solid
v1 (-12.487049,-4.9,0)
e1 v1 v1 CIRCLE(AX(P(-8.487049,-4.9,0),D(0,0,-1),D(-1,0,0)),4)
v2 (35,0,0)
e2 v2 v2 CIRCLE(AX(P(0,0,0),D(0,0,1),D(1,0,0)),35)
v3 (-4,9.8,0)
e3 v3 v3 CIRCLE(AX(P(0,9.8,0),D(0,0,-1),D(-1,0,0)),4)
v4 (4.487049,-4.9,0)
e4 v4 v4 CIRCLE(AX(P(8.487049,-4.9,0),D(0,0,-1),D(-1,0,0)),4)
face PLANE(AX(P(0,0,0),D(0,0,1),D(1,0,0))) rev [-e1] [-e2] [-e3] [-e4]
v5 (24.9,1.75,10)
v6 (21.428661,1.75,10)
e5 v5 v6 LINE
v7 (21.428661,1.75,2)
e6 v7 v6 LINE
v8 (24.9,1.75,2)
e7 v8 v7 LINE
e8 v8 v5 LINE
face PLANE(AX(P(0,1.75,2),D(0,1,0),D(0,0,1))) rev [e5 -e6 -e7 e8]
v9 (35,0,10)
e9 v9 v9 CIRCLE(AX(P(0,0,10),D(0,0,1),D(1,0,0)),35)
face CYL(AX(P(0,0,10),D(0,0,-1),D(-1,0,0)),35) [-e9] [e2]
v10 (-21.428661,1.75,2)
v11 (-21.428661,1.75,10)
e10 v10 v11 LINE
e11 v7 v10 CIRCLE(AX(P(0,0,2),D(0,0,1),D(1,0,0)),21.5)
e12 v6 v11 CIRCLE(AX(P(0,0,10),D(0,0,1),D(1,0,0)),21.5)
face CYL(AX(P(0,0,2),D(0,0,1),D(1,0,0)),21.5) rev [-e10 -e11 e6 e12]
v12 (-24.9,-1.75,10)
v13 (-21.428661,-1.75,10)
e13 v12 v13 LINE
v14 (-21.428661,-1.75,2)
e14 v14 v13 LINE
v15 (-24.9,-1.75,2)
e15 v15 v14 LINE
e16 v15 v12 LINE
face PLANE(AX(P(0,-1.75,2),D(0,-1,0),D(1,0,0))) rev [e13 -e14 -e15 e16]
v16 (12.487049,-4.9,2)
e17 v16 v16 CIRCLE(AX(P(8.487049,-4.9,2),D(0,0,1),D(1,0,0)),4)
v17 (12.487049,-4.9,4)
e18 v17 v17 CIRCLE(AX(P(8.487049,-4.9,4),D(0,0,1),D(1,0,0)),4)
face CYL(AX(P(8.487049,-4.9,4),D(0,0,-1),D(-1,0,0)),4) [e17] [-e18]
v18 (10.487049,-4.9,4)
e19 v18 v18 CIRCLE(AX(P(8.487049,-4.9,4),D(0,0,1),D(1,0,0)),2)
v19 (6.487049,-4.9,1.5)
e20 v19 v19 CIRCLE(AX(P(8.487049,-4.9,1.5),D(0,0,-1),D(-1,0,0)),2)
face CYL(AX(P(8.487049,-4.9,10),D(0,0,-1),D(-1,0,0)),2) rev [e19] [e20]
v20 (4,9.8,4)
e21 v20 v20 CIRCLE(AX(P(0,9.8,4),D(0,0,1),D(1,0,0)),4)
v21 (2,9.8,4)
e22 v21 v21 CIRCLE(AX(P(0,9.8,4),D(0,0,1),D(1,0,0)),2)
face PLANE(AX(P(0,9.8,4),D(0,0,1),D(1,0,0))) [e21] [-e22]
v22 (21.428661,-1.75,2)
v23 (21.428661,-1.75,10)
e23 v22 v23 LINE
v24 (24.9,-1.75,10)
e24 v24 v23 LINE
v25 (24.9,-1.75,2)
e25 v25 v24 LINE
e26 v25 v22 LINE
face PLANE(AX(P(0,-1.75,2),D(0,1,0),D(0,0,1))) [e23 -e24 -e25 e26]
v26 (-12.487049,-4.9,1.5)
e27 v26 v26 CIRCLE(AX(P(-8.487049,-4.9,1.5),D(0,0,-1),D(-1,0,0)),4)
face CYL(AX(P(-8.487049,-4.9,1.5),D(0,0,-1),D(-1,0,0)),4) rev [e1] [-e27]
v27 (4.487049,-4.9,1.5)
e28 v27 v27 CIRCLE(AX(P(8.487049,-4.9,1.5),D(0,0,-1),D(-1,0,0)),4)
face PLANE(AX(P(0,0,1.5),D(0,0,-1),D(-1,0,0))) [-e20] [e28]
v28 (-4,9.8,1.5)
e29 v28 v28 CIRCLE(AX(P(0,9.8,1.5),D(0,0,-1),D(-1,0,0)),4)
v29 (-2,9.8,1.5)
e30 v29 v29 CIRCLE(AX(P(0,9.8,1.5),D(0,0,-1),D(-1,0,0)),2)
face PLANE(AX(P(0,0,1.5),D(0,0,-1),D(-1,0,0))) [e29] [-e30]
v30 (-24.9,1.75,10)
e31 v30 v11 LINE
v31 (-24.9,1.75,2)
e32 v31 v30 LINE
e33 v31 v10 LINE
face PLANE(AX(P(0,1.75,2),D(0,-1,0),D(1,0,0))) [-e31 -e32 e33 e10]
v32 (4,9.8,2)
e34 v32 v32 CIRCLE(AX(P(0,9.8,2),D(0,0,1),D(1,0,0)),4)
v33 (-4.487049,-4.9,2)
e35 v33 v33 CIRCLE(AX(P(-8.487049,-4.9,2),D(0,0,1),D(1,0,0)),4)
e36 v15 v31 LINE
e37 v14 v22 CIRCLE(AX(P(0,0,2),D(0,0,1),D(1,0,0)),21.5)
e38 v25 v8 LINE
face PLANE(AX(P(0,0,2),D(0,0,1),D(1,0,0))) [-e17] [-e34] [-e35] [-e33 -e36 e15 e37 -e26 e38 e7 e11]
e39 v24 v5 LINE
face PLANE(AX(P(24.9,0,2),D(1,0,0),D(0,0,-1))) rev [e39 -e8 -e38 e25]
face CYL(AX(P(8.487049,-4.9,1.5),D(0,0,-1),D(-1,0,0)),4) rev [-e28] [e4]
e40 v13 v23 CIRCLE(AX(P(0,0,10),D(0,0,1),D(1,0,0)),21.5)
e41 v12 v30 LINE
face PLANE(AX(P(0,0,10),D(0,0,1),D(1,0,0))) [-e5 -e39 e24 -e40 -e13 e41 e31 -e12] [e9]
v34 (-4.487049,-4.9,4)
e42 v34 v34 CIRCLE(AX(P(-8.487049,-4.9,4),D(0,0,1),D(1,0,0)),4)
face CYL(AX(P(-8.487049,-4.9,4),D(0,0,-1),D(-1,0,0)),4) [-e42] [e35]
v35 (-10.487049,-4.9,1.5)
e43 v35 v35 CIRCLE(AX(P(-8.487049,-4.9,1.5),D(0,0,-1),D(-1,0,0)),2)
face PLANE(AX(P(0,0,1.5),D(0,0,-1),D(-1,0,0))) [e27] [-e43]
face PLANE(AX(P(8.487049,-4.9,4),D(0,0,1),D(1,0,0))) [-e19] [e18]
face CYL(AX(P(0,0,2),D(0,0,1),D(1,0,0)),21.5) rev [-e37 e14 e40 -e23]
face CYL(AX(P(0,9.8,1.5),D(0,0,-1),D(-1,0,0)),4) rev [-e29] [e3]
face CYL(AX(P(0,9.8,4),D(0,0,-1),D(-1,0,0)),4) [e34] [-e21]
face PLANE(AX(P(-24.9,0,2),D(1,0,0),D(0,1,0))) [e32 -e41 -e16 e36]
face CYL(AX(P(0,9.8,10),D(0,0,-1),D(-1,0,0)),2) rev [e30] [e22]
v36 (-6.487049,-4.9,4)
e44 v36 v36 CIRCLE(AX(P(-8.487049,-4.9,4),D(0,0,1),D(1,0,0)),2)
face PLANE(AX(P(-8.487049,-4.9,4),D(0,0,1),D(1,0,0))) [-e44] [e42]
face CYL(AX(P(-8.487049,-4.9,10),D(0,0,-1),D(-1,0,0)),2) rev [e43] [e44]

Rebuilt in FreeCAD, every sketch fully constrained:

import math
import FreeCAD as App
import Part
import Sketcher
from FreeCAD import Vector
Q = App.Units.Quantity

doc = App.newDocument("Part")
body = doc.addObject("PartDesign::Body", "Body")

sketch1 = body.newObject("Sketcher::SketchObject", "Sketch")
sketch1.AttachmentSupport = (doc.getObject("XY_Plane"), [""])
sketch1.MapMode = "FlatFace"
sketch1.addGeometry(Part.Circle(Vector(0, 0, 0), Vector(0, 0, 1), 35), False)
sketch1.addConstraint([
    Sketcher.Constraint("Coincident", 0, 3, -1, 1),
    Sketcher.Constraint("Diameter", 0, Q("70 mm")),
])
pad1 = body.newObject("PartDesign::Pad", "Pad")
pad1.Profile = sketch1
pad1.Length = 10

sketch2 = body.newObject("Sketcher::SketchObject", "Sketch001")
sketch2.AttachmentSupport = (doc.getObject("XY_Plane"), [""])
sketch2.MapMode = "FlatFace"
sketch2.AttachmentOffset = App.Placement(Vector(0, 0, 10), App.Rotation())
sketch2.addGeometry([
    Part.ArcOfCircle(Part.Circle(Vector(0, 0, 0), Vector(0, 0, 1), 21.5), math.radians(5), math.radians(175)),
    Part.LineSegment(Vector(-21.4, 1.8, 0), Vector(-24.9, 1.8, 0)),
    Part.LineSegment(Vector(-24.9, 1.8, 0), Vector(-24.9, -1.8, 0)),
    Part.LineSegment(Vector(-24.9, -1.8, 0), Vector(-21.4, -1.8, 0)),
    Part.ArcOfCircle(Part.Circle(Vector(0, 0, 0), Vector(0, 0, 1), 21.5), math.radians(-175), math.radians(-5)),
    Part.LineSegment(Vector(21.4, -1.8, 0), Vector(24.9, -1.8, 0)),
    Part.LineSegment(Vector(24.9, -1.8, 0), Vector(24.9, 1.8, 0)),
    Part.LineSegment(Vector(24.9, 1.8, 0), Vector(21.4, 1.8, 0)),
], False)
sketch2.addConstraint([
    Sketcher.Constraint("Coincident", 0, 2, 1, 1),
    Sketcher.Constraint("Coincident", 1, 2, 2, 1),
    Sketcher.Constraint("Coincident", 2, 2, 3, 1),
    Sketcher.Constraint("Coincident", 3, 2, 4, 1),
    Sketcher.Constraint("Coincident", 4, 2, 5, 1),
    Sketcher.Constraint("Coincident", 5, 2, 6, 1),
    Sketcher.Constraint("Coincident", 6, 2, 7, 1),
    Sketcher.Constraint("Coincident", 7, 2, 0, 1),
    Sketcher.Constraint("Horizontal", 1),
    Sketcher.Constraint("Vertical", 2),
    Sketcher.Constraint("Horizontal", 3),
    Sketcher.Constraint("Horizontal", 5),
    Sketcher.Constraint("Vertical", 6),
    Sketcher.Constraint("Horizontal", 7),
    Sketcher.Constraint("Coincident", 0, 3, -1, 1),
    Sketcher.Constraint("Coincident", 4, 3, -1, 1),
    Sketcher.Constraint("Equal", 0, 4),
    Sketcher.Constraint("Symmetric", 1, 2, 5, 2, -1, 1),
    Sketcher.Constraint("Horizontal", 3, 2, 4, 2),
    Sketcher.Constraint("Horizontal", 1, 2, 6, 2),
    Sketcher.Constraint("Radius", 0, Q("21.5 mm")),
    Sketcher.Constraint("DistanceY", 2, 2, 2, 1, Q("3.5 mm")),
    Sketcher.Constraint("DistanceX", 1, 2, -1, 1, Q("24.9 mm")),
])
pocket1 = body.newObject("PartDesign::Pocket", "Pocket")
pocket1.Profile = sketch2
pocket1.Length = 8

sketch3 = body.newObject("Sketcher::SketchObject", "Sketch002")
sketch3.AttachmentSupport = (doc.getObject("XY_Plane"), [""])
sketch3.MapMode = "FlatFace"
sketch3.addGeometry([
    Part.Circle(Vector(-8.5, -4.9, 0), Vector(0, 0, 1), 4),
    Part.Circle(Vector(8.5, -4.9, 0), Vector(0, 0, 1), 4),
    Part.Circle(Vector(0, 9.8, 0), Vector(0, 0, 1), 4),
], False)
sketch3.addConstraint([
    Sketcher.Constraint("Equal", 0, 1),
    Sketcher.Constraint("Equal", 1, 2),
    Sketcher.Constraint("Symmetric", 0, 3, 1, 3, -2),
    Sketcher.Constraint("PointOnObject", 2, 3, -2),
    Sketcher.Constraint("Diameter", 0, Q("8 mm")),
    Sketcher.Constraint("DistanceY", 0, 3, -1, 1, Q("4.9 mm")),
    Sketcher.Constraint("DistanceY", -1, 1, 2, 3, Q("9.8 mm")),
    Sketcher.Constraint("DistanceX", 0, 3, -1, 1, Q("8.487049 mm")),
])
pocket2 = body.newObject("PartDesign::Pocket", "Pocket001")
pocket2.Profile = sketch3
pocket2.Length = 1.5
pocket2.Reversed = True

sketch4 = body.newObject("Sketcher::SketchObject", "Sketch003")
sketch4.AttachmentSupport = (doc.getObject("XY_Plane"), [""])
sketch4.MapMode = "FlatFace"
sketch4.AttachmentOffset = App.Placement(Vector(0, 0, 1.5), App.Rotation())
sketch4.addGeometry([
    Part.Circle(Vector(0, 9.8, 0), Vector(0, 0, 1), 2),
    Part.Circle(Vector(-8.5, -4.9, 0), Vector(0, 0, 1), 2),
    Part.Circle(Vector(8.5, -4.9, 0), Vector(0, 0, 1), 2),
], False)
sketch4.addConstraint([
    Sketcher.Constraint("Equal", 0, 1),
    Sketcher.Constraint("Equal", 1, 2),
    Sketcher.Constraint("Symmetric", 1, 3, 2, 3, -2),
    Sketcher.Constraint("PointOnObject", 0, 3, -2),
    Sketcher.Constraint("Diameter", 0, Q("4 mm")),
    Sketcher.Constraint("DistanceY", -1, 1, 0, 3, Q("9.8 mm")),
    Sketcher.Constraint("DistanceY", 1, 3, -1, 1, Q("4.9 mm")),
    Sketcher.Constraint("DistanceX", 1, 3, -1, 1, Q("8.487049 mm")),
])
pocket3 = body.newObject("PartDesign::Pocket", "Pocket002")
pocket3.Profile = sketch4
pocket3.Type = "ThroughAll"
pocket3.Reversed = True

sketch5 = body.newObject("Sketcher::SketchObject", "Sketch004")
sketch5.AttachmentSupport = (doc.getObject("XY_Plane"), [""])
sketch5.MapMode = "FlatFace"
sketch5.AttachmentOffset = App.Placement(Vector(0, 0, 2), App.Rotation())
sketch5.addGeometry([
    Part.Circle(Vector(0, 9.8, 0), Vector(0, 0, 1), 4),
    Part.Circle(Vector(0, 9.8, 0), Vector(0, 0, 1), 2),
], False)
sketch5.addConstraint([
    Sketcher.Constraint("Coincident", 1, 3, 0, 3),
    Sketcher.Constraint("PointOnObject", 0, 3, -2),
    Sketcher.Constraint("Diameter", 0, Q("8 mm")),
    Sketcher.Constraint("Diameter", 1, Q("4 mm")),
    Sketcher.Constraint("DistanceY", -1, 1, 0, 3, Q("9.8 mm")),
])
pad2 = body.newObject("PartDesign::Pad", "Pad001")
pad2.Profile = sketch5
pad2.Length = 2

sketch6 = body.newObject("Sketcher::SketchObject", "Sketch005")
sketch6.AttachmentSupport = (doc.getObject("XY_Plane"), [""])
sketch6.MapMode = "FlatFace"
sketch6.AttachmentOffset = App.Placement(Vector(0, 0, 2), App.Rotation())
sketch6.addGeometry([
    Part.Circle(Vector(-8.5, -4.9, 0), Vector(0, 0, 1), 4),
    Part.Circle(Vector(-8.5, -4.9, 0), Vector(0, 0, 1), 2),
], False)
sketch6.addConstraint([
    Sketcher.Constraint("Coincident", 1, 3, 0, 3),
    Sketcher.Constraint("Diameter", 0, Q("8 mm")),
    Sketcher.Constraint("Diameter", 1, Q("4 mm")),
    Sketcher.Constraint("DistanceY", 0, 3, -1, 1, Q("4.9 mm")),
    Sketcher.Constraint("DistanceX", 0, 3, -1, 1, Q("8.487049 mm")),
])
pad3 = body.newObject("PartDesign::Pad", "Pad002")
pad3.Profile = sketch6
pad3.Length = 2

sketch7 = body.newObject("Sketcher::SketchObject", "Sketch006")
sketch7.AttachmentSupport = (doc.getObject("XY_Plane"), [""])
sketch7.MapMode = "FlatFace"
sketch7.AttachmentOffset = App.Placement(Vector(0, 0, 2), App.Rotation())
sketch7.addGeometry([
    Part.Circle(Vector(8.5, -4.9, 0), Vector(0, 0, 1), 4),
    Part.Circle(Vector(8.5, -4.9, 0), Vector(0, 0, 1), 2),
], False)
sketch7.addConstraint([
    Sketcher.Constraint("Coincident", 1, 3, 0, 3),
    Sketcher.Constraint("Diameter", 0, Q("8 mm")),
    Sketcher.Constraint("Diameter", 1, Q("4 mm")),
    Sketcher.Constraint("DistanceY", 0, 3, -1, 1, Q("4.9 mm")),
    Sketcher.Constraint("DistanceX", -1, 1, 0, 3, Q("8.487049 mm")),
])
pad4 = body.newObject("PartDesign::Pad", "Pad003")
pad4.Profile = sketch7
pad4.Length = 2

doc.recompute()
